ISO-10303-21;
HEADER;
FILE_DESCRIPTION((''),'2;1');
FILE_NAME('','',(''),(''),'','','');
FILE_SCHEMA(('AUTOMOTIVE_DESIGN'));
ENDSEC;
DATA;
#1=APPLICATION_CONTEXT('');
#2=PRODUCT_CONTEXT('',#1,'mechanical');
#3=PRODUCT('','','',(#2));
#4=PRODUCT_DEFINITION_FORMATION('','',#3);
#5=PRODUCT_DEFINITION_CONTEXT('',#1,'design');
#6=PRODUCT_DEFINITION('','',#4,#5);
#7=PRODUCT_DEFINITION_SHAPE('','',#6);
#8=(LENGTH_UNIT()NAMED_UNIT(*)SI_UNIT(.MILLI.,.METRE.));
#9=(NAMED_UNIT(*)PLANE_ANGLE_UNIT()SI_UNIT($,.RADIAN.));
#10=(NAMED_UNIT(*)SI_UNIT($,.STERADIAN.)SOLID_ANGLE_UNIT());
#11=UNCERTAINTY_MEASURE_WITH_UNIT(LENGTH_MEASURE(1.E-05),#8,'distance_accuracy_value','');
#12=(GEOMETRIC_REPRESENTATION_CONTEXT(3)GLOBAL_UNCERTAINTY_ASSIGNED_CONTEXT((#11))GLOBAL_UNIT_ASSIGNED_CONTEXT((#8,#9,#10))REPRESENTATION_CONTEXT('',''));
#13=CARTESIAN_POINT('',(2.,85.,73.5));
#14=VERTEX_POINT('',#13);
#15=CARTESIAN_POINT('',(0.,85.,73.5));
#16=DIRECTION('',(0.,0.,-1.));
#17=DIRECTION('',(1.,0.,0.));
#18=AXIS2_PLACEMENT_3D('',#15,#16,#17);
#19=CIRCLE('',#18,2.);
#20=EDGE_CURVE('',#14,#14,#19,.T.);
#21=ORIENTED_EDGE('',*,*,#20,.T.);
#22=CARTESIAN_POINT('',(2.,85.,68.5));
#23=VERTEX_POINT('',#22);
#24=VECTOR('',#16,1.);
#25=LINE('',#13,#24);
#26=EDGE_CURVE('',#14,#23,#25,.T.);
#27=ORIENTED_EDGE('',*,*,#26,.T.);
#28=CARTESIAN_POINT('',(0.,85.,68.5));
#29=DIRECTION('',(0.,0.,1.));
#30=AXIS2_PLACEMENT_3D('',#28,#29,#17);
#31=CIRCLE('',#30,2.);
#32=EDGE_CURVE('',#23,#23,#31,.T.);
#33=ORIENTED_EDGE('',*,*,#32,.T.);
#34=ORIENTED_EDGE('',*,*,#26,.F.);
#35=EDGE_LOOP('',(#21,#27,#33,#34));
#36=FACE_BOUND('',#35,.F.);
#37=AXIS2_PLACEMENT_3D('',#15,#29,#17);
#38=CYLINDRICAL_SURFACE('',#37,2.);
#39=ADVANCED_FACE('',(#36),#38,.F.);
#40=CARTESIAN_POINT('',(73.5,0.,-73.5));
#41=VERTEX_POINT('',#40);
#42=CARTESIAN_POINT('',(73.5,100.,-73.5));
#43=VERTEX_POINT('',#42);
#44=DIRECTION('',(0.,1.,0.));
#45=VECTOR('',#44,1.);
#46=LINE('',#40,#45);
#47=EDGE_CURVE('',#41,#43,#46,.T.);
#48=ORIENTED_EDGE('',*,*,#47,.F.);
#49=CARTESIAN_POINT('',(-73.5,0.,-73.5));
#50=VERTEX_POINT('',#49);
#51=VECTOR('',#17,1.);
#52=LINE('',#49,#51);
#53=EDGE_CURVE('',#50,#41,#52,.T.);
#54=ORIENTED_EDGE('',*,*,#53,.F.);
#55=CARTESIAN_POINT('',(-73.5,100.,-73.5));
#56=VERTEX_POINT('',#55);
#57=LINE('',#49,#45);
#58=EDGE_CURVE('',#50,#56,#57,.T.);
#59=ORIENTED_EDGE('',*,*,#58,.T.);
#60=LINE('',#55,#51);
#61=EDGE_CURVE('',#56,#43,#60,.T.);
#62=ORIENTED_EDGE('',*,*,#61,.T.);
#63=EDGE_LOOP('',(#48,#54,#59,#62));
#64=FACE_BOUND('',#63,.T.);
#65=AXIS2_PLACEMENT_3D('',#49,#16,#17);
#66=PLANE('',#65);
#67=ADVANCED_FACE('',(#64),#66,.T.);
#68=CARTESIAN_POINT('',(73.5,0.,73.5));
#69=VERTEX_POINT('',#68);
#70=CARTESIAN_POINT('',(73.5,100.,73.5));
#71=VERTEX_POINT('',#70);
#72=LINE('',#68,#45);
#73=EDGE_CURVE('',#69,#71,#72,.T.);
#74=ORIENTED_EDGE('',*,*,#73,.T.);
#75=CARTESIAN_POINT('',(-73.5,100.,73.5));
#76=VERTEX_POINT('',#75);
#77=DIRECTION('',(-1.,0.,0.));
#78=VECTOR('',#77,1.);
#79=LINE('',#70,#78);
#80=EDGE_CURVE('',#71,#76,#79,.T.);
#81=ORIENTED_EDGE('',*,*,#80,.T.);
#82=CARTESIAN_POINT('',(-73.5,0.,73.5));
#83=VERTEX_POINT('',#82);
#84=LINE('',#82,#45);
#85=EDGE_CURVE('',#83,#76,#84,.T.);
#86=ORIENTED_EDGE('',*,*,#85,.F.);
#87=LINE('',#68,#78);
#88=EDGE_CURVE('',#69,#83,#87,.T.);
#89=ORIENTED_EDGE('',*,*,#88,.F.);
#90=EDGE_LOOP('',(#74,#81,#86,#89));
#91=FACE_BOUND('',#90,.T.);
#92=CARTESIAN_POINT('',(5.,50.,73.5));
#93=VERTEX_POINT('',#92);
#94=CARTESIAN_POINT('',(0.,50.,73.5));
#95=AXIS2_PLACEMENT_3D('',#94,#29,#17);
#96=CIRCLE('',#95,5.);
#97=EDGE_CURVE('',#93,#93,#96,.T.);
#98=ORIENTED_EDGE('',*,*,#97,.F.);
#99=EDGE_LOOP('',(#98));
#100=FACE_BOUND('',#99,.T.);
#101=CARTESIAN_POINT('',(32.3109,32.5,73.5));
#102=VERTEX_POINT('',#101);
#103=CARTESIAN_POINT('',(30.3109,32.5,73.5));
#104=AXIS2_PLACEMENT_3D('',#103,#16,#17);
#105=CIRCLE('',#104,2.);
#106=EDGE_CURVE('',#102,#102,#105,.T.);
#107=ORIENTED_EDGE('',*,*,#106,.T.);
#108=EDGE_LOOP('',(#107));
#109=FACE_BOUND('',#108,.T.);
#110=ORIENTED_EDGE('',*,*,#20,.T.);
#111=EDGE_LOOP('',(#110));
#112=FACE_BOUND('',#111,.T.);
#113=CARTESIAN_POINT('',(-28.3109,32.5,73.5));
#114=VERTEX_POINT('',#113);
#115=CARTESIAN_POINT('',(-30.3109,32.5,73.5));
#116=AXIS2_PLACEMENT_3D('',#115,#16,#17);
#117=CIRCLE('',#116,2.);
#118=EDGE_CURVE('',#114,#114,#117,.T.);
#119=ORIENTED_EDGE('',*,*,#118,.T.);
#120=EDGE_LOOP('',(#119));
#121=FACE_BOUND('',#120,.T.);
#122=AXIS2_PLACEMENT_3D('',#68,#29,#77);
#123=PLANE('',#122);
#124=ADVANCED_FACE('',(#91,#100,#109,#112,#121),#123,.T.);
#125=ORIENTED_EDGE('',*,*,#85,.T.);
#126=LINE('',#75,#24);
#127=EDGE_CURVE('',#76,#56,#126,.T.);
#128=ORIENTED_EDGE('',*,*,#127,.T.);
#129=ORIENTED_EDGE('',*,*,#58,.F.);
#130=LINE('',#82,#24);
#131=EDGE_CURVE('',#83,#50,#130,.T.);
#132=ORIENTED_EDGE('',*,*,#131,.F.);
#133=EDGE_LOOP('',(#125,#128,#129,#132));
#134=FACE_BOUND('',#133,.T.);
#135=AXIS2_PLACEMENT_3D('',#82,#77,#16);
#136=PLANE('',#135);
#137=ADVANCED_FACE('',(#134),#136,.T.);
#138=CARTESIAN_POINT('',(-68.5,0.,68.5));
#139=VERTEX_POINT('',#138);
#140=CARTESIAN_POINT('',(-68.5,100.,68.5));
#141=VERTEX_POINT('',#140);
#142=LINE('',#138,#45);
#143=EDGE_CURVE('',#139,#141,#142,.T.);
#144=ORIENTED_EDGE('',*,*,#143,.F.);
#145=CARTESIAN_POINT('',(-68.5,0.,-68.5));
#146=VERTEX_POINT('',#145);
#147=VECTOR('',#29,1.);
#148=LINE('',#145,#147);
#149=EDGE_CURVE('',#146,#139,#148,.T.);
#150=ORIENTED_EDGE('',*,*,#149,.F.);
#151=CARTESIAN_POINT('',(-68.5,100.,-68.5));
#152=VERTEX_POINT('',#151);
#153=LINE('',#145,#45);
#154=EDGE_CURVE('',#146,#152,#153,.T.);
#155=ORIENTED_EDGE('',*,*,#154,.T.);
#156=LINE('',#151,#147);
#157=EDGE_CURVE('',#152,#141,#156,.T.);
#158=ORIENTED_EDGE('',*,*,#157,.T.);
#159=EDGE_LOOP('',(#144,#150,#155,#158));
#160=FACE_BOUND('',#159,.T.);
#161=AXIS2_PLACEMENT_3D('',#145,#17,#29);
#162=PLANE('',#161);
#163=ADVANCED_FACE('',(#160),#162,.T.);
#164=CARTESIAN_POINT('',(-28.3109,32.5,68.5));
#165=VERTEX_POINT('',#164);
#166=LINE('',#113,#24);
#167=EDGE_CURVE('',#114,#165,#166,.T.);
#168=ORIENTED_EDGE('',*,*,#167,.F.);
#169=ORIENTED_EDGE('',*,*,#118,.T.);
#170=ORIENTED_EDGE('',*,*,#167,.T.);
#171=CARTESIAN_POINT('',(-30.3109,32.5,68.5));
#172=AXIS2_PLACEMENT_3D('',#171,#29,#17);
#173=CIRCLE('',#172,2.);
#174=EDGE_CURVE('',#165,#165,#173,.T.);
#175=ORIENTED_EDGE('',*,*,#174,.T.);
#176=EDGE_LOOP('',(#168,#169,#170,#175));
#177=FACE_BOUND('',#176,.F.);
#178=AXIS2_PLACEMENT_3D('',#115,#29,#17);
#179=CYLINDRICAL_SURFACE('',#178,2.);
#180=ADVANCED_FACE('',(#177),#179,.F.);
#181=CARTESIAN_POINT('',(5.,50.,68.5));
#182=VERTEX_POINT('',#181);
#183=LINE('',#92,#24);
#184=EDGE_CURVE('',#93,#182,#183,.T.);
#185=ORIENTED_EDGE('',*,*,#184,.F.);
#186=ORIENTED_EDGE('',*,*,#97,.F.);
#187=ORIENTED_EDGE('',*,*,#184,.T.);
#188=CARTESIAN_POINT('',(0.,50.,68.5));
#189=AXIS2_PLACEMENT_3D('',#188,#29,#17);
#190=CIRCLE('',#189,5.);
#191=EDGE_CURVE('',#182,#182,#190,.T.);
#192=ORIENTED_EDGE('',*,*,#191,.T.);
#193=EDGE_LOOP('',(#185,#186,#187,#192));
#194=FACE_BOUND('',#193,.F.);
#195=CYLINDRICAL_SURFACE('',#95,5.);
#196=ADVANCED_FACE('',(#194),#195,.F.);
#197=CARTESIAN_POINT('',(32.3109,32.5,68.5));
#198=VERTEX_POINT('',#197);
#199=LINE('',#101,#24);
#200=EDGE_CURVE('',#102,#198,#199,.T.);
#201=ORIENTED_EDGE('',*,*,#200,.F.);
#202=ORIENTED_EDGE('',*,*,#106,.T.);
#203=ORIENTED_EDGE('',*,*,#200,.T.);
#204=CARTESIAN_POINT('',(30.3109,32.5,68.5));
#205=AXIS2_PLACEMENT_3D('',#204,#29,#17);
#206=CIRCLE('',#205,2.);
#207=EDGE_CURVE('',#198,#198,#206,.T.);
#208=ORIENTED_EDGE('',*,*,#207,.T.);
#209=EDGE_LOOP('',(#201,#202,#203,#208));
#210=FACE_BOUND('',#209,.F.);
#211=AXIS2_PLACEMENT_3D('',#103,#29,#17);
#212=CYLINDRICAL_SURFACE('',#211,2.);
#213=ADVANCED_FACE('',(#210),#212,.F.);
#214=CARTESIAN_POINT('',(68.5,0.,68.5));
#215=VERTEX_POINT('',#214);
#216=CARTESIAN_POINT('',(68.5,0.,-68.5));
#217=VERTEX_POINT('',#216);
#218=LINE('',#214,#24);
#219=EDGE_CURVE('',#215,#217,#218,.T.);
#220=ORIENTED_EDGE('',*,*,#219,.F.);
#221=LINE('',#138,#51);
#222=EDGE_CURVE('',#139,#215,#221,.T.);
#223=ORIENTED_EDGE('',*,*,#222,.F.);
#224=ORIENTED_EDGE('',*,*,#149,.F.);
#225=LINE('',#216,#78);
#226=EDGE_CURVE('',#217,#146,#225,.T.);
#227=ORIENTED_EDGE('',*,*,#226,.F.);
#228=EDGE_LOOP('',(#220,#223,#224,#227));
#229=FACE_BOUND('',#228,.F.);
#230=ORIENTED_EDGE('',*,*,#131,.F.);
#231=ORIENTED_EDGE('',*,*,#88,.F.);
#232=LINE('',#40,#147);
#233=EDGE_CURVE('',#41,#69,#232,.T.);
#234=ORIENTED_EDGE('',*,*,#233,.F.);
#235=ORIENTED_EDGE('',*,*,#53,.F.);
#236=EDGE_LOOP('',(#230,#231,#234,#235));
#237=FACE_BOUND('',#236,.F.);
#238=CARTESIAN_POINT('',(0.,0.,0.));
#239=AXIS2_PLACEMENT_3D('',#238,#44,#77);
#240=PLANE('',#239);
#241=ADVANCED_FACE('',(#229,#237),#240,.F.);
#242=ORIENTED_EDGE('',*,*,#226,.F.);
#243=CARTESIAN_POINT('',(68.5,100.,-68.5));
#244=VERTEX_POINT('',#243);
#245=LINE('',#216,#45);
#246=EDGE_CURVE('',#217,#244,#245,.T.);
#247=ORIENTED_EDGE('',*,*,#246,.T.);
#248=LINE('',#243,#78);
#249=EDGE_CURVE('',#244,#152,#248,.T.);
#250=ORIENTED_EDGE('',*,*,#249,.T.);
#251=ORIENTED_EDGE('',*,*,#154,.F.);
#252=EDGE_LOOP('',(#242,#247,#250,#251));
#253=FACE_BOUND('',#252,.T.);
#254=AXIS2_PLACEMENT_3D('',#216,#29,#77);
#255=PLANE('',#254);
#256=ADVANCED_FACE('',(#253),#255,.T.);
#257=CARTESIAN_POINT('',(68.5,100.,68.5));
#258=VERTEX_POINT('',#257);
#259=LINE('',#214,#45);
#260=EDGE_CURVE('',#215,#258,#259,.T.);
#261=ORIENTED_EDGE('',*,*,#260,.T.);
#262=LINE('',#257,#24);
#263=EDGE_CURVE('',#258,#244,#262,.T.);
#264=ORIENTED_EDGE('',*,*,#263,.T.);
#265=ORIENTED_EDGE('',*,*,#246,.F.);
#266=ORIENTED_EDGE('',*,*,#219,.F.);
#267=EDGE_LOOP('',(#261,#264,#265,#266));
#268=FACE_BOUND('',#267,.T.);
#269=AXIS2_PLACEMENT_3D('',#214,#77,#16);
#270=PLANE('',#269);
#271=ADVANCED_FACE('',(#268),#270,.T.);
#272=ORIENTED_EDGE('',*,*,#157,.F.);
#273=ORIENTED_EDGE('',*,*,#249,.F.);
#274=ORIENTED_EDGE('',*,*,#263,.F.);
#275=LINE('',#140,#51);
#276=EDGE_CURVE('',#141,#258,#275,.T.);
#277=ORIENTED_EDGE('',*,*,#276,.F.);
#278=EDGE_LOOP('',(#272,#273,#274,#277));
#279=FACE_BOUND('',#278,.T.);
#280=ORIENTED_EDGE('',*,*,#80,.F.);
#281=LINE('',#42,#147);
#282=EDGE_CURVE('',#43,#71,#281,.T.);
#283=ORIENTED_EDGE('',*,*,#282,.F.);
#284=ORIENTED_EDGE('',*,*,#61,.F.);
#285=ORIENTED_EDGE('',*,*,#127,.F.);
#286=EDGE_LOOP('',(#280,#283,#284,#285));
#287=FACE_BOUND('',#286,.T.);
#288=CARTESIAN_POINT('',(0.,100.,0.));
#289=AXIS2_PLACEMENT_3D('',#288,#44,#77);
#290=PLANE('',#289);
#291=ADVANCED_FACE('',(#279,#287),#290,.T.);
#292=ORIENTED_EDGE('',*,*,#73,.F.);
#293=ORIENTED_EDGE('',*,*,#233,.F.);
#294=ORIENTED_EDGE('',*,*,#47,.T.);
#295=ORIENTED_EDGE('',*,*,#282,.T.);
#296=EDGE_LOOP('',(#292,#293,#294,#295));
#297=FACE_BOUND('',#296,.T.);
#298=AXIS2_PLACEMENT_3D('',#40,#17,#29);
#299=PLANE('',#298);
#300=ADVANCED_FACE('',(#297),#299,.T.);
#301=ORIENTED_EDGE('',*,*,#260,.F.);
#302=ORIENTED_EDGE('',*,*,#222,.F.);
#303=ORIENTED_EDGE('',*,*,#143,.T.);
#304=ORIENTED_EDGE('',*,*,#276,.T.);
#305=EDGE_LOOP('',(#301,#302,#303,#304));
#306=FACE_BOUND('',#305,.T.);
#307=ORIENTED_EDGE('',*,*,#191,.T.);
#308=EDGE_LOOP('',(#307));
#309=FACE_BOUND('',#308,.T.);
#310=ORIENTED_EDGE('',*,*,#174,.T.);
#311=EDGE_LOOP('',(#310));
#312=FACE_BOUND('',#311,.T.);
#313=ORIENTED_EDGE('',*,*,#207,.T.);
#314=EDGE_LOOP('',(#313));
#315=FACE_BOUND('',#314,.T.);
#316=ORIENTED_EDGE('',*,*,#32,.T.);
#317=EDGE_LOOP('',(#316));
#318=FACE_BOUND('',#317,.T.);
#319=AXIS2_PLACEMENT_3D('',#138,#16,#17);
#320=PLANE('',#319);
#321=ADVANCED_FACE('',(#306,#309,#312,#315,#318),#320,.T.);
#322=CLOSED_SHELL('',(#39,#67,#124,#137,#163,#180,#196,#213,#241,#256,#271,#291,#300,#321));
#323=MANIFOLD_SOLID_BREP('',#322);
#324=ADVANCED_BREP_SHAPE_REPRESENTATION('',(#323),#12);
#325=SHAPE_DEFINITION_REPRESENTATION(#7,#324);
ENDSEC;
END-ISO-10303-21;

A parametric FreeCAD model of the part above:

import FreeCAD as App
import Part
import Sketcher
Q = App.Units.Quantity

doc = App.newDocument("Part")
body = doc.addObject("PartDesign::Body", "Body")

# Sketch on XZ plane
sketch1 = doc.addObject("Sketcher::SketchObject", "Sketch")
body.addObject(sketch1)
sketch1.AttachmentSupport = (doc.XZ_Plane, [""])
sketch1.MapMode = "FlatFace"
sketch1.addGeometry([
    Part.LineSegment(App.Vector(-73.5, 73.5, 0), App.Vector(73.5, 73.5, 0)),  # 0
    Part.LineSegment(App.Vector(73.5, 73.5, 0), App.Vector(73.5, -73.5, 0)),  # 1
    Part.LineSegment(App.Vector(73.5, -73.5, 0), App.Vector(-73.5, -73.5, 0)),  # 2
    Part.LineSegment(App.Vector(-73.5, -73.5, 0), App.Vector(-73.5, 73.5, 0)),  # 3
    Part.LineSegment(App.Vector(-68.5, -68.5, 0), App.Vector(68.5, -68.5, 0)),  # 4
    Part.LineSegment(App.Vector(68.5, -68.5, 0), App.Vector(68.5, 68.5, 0)),  # 5
    Part.LineSegment(App.Vector(68.5, 68.5, 0), App.Vector(-68.5, 68.5, 0)),  # 6
    Part.LineSegment(App.Vector(-68.5, 68.5, 0), App.Vector(-68.5, -68.5, 0)),  # 7
], False)
sketch1.addConstraint([
    Sketcher.Constraint("Coincident", 0, 2, 1, 1),
    Sketcher.Constraint("Coincident", 1, 2, 2, 1),
    Sketcher.Constraint("Coincident", 2, 2, 3, 1),
    Sketcher.Constraint("Coincident", 3, 2, 0, 1),
    Sketcher.Constraint("Coincident", 4, 2, 5, 1),
    Sketcher.Constraint("Coincident", 5, 2, 6, 1),
    Sketcher.Constraint("Coincident", 6, 2, 7, 1),
    Sketcher.Constraint("Coincident", 7, 2, 4, 1),
    Sketcher.Constraint("Horizontal", 0),
    Sketcher.Constraint("Vertical", 1),
    Sketcher.Constraint("Horizontal", 2),
    Sketcher.Constraint("Vertical", 3),
    Sketcher.Constraint("Horizontal", 4),
    Sketcher.Constraint("Vertical", 5),
    Sketcher.Constraint("Horizontal", 6),
    Sketcher.Constraint("Vertical", 7),
    Sketcher.Constraint("Symmetric", 0, 2, 2, 2, -1, 1),
    Sketcher.Constraint("Symmetric", 4, 2, 6, 2, -1, 1),
    Sketcher.Constraint("Equal", 2, 1),
    Sketcher.Constraint("Equal", 6, 5),
    Sketcher.Constraint("DistanceX", 4, 1, 4, 2, Q("137 mm")),
    Sketcher.Constraint("DistanceX", 4, 2, 1, 2, Q("5 mm")),
])
pad1 = doc.addObject("PartDesign::Pad", "Pad")
body.addObject(pad1)
pad1.Profile = sketch1
pad1.Length = 100
pad1.Reversed = True

# Sketch on XY plane
sketch2 = doc.addObject("Sketcher::SketchObject", "Sketch001")
body.addObject(sketch2)
sketch2.AttachmentSupport = (doc.XY_Plane, [""])
sketch2.MapMode = "FlatFace"
sketch2.AttachmentOffset = App.Placement(App.Vector(0, 0, 73.5), App.Rotation())
sketch2.addGeometry([
    Part.Circle(App.Vector(0, 85, 0), App.Vector(0, 0, 1), 2),
    Part.Circle(App.Vector(30.3109, 32.5, 0), App.Vector(0, 0, 1), 2),
    Part.Circle(App.Vector(-30.3109, 32.5, 0), App.Vector(0, 0, 1), 2),
    Part.Circle(App.Vector(0, 50, 0), App.Vector(0, 0, 1), 5),
], False)
sketch2.addConstraint([
    Sketcher.Constraint("Equal", 0, 1),
    Sketcher.Constraint("Equal", 1, 2),
    Sketcher.Constraint("Symmetric", 1, 3, 2, 3, -2),
    Sketcher.Constraint("PointOnObject", 0, 3, -2),
    Sketcher.Constraint("PointOnObject", 3, 3, -2),
    Sketcher.Constraint("Diameter", 0, Q("4 mm")),
    Sketcher.Constraint("Diameter", 3, Q("10 mm")),
    Sketcher.Constraint("DistanceY", -1, 1, 0, 3, Q("85 mm")),
    Sketcher.Constraint("DistanceY", -1, 1, 3, 3, Q("50 mm")),
    Sketcher.Constraint("DistanceY", -1, 1, 1, 3, Q("32.5 mm")),
    Sketcher.Constraint("DistanceX", -1, 1, 1, 3, Q("30.311 mm")),
])
pocket1 = doc.addObject("PartDesign::Pocket", "Pocket")
body.addObject(pocket1)
pocket1.Profile = sketch2
pocket1.Length = 5

doc.recompute()
